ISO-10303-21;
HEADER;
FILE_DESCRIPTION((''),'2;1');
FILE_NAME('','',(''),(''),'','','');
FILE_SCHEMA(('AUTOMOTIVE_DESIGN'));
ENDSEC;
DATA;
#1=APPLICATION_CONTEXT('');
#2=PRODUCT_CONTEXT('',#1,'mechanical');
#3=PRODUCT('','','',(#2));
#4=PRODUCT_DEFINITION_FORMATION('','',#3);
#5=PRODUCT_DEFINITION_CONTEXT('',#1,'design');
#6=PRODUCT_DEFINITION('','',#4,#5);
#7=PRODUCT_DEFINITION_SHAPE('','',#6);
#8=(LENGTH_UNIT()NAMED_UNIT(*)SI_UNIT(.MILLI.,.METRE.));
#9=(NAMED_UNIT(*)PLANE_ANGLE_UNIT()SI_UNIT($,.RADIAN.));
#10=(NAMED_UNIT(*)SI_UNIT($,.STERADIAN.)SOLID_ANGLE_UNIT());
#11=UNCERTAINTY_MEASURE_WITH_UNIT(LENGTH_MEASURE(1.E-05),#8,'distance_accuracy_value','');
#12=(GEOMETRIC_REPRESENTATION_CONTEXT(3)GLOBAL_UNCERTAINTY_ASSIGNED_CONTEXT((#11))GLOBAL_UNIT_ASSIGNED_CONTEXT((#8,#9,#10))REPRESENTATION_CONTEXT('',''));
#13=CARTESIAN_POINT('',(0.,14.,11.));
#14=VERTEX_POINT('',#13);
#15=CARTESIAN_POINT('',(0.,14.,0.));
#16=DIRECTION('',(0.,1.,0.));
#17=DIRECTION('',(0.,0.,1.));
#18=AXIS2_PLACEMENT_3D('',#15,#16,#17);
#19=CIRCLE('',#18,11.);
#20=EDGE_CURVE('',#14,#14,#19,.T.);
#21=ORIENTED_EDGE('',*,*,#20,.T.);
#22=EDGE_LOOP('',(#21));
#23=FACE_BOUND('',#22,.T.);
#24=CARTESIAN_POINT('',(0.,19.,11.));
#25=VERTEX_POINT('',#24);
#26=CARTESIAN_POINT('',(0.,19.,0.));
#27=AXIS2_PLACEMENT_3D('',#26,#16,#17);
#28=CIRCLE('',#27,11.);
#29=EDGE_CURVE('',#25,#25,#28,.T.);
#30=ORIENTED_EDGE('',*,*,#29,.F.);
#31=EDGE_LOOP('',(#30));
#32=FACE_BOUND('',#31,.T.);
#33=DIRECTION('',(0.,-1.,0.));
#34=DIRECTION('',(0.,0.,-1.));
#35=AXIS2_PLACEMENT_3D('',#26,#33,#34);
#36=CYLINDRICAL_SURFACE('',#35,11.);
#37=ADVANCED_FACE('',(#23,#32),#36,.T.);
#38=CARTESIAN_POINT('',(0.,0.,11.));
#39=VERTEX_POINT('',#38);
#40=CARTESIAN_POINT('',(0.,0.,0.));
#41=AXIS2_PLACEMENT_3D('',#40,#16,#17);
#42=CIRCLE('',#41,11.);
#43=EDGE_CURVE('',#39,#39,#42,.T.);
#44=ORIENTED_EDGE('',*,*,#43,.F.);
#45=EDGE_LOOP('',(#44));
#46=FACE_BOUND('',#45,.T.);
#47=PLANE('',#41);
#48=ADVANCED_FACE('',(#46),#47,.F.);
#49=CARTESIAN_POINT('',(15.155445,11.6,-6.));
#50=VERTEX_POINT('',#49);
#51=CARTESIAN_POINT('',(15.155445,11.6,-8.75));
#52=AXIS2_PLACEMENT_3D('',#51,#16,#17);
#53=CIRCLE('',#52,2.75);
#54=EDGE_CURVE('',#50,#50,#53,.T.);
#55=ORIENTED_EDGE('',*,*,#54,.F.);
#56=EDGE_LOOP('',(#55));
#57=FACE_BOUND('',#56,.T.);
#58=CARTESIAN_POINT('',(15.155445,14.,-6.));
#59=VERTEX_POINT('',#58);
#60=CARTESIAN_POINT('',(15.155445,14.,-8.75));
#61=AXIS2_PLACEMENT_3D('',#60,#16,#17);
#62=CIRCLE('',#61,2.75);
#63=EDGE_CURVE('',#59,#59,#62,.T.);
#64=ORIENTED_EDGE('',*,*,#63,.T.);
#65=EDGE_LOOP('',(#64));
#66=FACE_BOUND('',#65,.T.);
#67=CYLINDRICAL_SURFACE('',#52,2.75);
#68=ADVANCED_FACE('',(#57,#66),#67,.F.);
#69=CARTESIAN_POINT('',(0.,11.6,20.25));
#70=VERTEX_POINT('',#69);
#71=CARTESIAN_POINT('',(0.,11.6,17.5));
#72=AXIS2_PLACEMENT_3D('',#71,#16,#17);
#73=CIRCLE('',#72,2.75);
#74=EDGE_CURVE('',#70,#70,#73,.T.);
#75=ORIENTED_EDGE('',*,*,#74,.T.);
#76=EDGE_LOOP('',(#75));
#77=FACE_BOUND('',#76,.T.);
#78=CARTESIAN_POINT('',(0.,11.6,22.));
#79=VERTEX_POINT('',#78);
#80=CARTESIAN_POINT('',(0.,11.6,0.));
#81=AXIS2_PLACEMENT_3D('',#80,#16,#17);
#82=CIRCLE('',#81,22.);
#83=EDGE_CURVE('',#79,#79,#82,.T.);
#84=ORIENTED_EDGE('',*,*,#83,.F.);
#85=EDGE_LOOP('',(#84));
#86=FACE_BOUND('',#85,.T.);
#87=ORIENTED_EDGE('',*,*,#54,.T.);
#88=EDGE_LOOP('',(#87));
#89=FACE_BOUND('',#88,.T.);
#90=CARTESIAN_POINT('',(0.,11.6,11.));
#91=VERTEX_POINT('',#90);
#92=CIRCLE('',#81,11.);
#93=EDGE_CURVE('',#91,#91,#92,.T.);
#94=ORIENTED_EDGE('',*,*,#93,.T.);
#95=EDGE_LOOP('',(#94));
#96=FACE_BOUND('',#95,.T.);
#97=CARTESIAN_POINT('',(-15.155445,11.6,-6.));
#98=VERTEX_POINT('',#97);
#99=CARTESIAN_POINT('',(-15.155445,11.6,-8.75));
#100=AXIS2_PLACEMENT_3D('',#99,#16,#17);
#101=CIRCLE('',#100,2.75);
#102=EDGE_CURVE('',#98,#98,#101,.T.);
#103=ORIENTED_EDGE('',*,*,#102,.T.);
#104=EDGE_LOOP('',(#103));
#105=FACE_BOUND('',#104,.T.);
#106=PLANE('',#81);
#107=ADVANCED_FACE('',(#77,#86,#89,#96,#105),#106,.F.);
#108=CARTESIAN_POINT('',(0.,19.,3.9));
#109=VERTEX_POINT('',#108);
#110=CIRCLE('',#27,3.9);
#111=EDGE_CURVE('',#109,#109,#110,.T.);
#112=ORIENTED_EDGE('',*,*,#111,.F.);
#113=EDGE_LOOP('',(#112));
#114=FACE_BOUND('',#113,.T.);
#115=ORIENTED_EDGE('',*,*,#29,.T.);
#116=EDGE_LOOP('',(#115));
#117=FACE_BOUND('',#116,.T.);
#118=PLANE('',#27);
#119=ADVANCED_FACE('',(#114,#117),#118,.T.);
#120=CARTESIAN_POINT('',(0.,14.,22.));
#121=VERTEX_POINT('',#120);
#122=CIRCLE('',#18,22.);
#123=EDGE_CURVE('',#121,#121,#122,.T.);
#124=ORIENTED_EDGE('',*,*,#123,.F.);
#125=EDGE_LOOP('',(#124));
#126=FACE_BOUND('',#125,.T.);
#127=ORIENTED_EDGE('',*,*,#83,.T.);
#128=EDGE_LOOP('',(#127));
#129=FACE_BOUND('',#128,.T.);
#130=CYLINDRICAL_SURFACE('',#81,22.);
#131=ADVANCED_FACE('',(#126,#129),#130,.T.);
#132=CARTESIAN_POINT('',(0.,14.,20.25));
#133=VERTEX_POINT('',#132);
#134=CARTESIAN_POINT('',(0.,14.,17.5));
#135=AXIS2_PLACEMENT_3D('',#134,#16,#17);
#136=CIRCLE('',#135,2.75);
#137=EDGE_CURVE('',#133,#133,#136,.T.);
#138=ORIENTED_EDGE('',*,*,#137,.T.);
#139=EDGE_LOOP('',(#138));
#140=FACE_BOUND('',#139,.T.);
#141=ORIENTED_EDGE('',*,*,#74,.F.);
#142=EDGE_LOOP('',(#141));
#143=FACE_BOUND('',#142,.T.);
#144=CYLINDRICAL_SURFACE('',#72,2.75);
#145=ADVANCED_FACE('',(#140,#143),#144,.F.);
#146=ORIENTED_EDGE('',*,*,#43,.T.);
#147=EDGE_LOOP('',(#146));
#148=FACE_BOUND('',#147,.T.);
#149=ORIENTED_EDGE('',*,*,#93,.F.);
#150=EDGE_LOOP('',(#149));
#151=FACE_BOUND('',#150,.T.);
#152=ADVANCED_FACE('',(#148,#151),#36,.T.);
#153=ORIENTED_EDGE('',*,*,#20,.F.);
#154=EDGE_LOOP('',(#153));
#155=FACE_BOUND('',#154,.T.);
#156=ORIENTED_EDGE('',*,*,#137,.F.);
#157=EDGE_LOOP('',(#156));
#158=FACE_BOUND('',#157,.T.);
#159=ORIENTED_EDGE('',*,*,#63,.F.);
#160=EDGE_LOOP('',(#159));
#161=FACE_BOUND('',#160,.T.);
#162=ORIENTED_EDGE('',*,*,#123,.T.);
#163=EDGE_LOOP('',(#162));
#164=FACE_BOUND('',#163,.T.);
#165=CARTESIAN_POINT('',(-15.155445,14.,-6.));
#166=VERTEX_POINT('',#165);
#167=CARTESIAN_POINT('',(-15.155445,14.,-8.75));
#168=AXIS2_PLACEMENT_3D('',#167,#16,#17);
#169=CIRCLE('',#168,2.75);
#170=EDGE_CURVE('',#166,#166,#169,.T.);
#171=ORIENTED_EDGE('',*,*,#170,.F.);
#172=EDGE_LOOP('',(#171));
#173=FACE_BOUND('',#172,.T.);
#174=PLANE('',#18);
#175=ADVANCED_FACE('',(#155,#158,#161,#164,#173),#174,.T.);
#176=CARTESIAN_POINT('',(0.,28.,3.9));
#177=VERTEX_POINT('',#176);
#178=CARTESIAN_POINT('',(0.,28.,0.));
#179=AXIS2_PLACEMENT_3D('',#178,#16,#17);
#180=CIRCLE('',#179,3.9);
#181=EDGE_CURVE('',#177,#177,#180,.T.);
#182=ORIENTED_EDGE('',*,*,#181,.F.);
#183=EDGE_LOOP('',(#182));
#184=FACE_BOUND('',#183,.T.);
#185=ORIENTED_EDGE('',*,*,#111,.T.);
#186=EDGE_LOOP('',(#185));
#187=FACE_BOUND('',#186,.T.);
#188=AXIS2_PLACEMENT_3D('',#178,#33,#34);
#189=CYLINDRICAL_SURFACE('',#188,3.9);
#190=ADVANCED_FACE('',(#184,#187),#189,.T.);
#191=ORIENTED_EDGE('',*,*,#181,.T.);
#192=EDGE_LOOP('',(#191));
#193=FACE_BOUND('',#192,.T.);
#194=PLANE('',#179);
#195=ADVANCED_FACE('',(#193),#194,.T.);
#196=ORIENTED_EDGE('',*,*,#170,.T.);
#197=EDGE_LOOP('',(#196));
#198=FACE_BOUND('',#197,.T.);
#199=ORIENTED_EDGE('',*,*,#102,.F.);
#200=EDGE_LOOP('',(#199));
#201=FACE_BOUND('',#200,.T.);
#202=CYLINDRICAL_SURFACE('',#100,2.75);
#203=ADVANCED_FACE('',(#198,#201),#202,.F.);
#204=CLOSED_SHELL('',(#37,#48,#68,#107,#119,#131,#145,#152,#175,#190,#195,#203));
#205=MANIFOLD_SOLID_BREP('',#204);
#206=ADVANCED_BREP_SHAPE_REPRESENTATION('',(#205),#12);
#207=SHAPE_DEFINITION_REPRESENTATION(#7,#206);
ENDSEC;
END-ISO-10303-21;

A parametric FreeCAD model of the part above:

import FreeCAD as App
import Part
import Sketcher
from FreeCAD import Vector
Q = App.Units.Quantity

doc = App.newDocument("Part")
params = doc.addObject("Spreadsheet::Sheet", "Params")
for row, (alias, value) in enumerate([
    ("sketch1_diameter", "22 mm"),
    ("pad1_length", "19 mm"),
    ("sketch2_diameter", "7.8 mm"),
    ("pad2_length", "9 mm"),
    ("sketch3_diameter", "44 mm"),
    ("sketch3_diameter2", "5.5 mm"),
    ("pad3_length", "2.4 mm"),
], start=1):
    params.set(f"A{row}", alias)
    params.set(f"B{row}", "=" + value)
    params.setAlias(f"B{row}", alias)

body = doc.addObject("PartDesign::Body", "Body")

sketch1 = body.newObject("Sketcher::SketchObject", "Sketch")
sketch1.AttachmentSupport = (doc.getObject("XZ_Plane"), [""])
sketch1.MapMode = "FlatFace"
sketch1.addGeometry(Part.Circle(Vector(0, 0, 0), Vector(0, 0, 1), 11), False)
sketch1.addConstraint([
    Sketcher.Constraint("Coincident", 0, 3, -1, 1),
    Sketcher.Constraint("Diameter", 0, Q("22 mm")),
])
sketch1.setExpression("Constraints[1]", "Params.sketch1_diameter")
pad1 = body.newObject("PartDesign::Pad", "Pad")
pad1.Profile = sketch1
pad1.setExpression("Length", "Params.pad1_length")
pad1.Reversed = True

sketch2 = body.newObject("Sketcher::SketchObject", "Sketch001")
sketch2.AttachmentSupport = (doc.getObject("XZ_Plane"), [""])
sketch2.MapMode = "FlatFace"
sketch2.AttachmentOffset = App.Placement(Vector(0, 0, -19), App.Rotation())
sketch2.addGeometry(Part.Circle(Vector(0, 0, 0), Vector(0, 0, 1), 3.9), False)
sketch2.addConstraint([
    Sketcher.Constraint("Coincident", 0, 3, -1, 1),
    Sketcher.Constraint("Diameter", 0, Q("7.8 mm")),
])
sketch2.setExpression("Constraints[1]", "Params.sketch2_diameter")
pad2 = body.newObject("PartDesign::Pad", "Pad001")
pad2.Profile = sketch2
pad2.setExpression("Length", "Params.pad2_length")
pad2.Reversed = True

sketch3 = body.newObject("Sketcher::SketchObject", "Sketch002")
sketch3.AttachmentSupport = (doc.getObject("XZ_Plane"), [""])
sketch3.MapMode = "FlatFace"
sketch3.AttachmentOffset = App.Placement(Vector(0, 0, -14), App.Rotation())
sketch3.addGeometry([
    Part.Circle(Vector(0, 0, 0), Vector(0, 0, 1), 22),
    Part.Circle(Vector(-15.2, -8.8, 0), Vector(0, 0, 1), 2.8),
    Part.Circle(Vector(15.2, -8.8, 0), Vector(0, 0, 1), 2.8),
    Part.Circle(Vector(0, 17.5, 0), Vector(0, 0, 1), 2.8),
], False)
sketch3.addConstraint([
    Sketcher.Constraint("Coincident", 0, 3, -1, 1),
    Sketcher.Constraint("Equal", 1, 2),
    Sketcher.Constraint("Equal", 2, 3),
    Sketcher.Constraint("Symmetric", 1, 3, 2, 3, -2),
    Sketcher.Constraint("PointOnObject", 3, 3, -2),
    Sketcher.Constraint("Diameter", 0, Q("44 mm")),
    Sketcher.Constraint("Diameter", 1, Q("5.5 mm")),
    Sketcher.Constraint("DistanceY", -1, 1, 3, 3, Q("17.5 mm")),
    Sketcher.Constraint("DistanceY", 1, 3, -1, 1, Q("8.75 mm")),
    Sketcher.Constraint("DistanceX", 1, 3, 2, 3, Q("30.310889 mm")),
])
sketch3.setExpression("Constraints[5]", "Params.sketch3_diameter")
sketch3.setExpression("Constraints[6]", "Params.sketch3_diameter2")
pad3 = body.newObject("PartDesign::Pad", "Pad002")
pad3.Profile = sketch3
pad3.setExpression("Length", "Params.pad3_length")

doc.recompute()
